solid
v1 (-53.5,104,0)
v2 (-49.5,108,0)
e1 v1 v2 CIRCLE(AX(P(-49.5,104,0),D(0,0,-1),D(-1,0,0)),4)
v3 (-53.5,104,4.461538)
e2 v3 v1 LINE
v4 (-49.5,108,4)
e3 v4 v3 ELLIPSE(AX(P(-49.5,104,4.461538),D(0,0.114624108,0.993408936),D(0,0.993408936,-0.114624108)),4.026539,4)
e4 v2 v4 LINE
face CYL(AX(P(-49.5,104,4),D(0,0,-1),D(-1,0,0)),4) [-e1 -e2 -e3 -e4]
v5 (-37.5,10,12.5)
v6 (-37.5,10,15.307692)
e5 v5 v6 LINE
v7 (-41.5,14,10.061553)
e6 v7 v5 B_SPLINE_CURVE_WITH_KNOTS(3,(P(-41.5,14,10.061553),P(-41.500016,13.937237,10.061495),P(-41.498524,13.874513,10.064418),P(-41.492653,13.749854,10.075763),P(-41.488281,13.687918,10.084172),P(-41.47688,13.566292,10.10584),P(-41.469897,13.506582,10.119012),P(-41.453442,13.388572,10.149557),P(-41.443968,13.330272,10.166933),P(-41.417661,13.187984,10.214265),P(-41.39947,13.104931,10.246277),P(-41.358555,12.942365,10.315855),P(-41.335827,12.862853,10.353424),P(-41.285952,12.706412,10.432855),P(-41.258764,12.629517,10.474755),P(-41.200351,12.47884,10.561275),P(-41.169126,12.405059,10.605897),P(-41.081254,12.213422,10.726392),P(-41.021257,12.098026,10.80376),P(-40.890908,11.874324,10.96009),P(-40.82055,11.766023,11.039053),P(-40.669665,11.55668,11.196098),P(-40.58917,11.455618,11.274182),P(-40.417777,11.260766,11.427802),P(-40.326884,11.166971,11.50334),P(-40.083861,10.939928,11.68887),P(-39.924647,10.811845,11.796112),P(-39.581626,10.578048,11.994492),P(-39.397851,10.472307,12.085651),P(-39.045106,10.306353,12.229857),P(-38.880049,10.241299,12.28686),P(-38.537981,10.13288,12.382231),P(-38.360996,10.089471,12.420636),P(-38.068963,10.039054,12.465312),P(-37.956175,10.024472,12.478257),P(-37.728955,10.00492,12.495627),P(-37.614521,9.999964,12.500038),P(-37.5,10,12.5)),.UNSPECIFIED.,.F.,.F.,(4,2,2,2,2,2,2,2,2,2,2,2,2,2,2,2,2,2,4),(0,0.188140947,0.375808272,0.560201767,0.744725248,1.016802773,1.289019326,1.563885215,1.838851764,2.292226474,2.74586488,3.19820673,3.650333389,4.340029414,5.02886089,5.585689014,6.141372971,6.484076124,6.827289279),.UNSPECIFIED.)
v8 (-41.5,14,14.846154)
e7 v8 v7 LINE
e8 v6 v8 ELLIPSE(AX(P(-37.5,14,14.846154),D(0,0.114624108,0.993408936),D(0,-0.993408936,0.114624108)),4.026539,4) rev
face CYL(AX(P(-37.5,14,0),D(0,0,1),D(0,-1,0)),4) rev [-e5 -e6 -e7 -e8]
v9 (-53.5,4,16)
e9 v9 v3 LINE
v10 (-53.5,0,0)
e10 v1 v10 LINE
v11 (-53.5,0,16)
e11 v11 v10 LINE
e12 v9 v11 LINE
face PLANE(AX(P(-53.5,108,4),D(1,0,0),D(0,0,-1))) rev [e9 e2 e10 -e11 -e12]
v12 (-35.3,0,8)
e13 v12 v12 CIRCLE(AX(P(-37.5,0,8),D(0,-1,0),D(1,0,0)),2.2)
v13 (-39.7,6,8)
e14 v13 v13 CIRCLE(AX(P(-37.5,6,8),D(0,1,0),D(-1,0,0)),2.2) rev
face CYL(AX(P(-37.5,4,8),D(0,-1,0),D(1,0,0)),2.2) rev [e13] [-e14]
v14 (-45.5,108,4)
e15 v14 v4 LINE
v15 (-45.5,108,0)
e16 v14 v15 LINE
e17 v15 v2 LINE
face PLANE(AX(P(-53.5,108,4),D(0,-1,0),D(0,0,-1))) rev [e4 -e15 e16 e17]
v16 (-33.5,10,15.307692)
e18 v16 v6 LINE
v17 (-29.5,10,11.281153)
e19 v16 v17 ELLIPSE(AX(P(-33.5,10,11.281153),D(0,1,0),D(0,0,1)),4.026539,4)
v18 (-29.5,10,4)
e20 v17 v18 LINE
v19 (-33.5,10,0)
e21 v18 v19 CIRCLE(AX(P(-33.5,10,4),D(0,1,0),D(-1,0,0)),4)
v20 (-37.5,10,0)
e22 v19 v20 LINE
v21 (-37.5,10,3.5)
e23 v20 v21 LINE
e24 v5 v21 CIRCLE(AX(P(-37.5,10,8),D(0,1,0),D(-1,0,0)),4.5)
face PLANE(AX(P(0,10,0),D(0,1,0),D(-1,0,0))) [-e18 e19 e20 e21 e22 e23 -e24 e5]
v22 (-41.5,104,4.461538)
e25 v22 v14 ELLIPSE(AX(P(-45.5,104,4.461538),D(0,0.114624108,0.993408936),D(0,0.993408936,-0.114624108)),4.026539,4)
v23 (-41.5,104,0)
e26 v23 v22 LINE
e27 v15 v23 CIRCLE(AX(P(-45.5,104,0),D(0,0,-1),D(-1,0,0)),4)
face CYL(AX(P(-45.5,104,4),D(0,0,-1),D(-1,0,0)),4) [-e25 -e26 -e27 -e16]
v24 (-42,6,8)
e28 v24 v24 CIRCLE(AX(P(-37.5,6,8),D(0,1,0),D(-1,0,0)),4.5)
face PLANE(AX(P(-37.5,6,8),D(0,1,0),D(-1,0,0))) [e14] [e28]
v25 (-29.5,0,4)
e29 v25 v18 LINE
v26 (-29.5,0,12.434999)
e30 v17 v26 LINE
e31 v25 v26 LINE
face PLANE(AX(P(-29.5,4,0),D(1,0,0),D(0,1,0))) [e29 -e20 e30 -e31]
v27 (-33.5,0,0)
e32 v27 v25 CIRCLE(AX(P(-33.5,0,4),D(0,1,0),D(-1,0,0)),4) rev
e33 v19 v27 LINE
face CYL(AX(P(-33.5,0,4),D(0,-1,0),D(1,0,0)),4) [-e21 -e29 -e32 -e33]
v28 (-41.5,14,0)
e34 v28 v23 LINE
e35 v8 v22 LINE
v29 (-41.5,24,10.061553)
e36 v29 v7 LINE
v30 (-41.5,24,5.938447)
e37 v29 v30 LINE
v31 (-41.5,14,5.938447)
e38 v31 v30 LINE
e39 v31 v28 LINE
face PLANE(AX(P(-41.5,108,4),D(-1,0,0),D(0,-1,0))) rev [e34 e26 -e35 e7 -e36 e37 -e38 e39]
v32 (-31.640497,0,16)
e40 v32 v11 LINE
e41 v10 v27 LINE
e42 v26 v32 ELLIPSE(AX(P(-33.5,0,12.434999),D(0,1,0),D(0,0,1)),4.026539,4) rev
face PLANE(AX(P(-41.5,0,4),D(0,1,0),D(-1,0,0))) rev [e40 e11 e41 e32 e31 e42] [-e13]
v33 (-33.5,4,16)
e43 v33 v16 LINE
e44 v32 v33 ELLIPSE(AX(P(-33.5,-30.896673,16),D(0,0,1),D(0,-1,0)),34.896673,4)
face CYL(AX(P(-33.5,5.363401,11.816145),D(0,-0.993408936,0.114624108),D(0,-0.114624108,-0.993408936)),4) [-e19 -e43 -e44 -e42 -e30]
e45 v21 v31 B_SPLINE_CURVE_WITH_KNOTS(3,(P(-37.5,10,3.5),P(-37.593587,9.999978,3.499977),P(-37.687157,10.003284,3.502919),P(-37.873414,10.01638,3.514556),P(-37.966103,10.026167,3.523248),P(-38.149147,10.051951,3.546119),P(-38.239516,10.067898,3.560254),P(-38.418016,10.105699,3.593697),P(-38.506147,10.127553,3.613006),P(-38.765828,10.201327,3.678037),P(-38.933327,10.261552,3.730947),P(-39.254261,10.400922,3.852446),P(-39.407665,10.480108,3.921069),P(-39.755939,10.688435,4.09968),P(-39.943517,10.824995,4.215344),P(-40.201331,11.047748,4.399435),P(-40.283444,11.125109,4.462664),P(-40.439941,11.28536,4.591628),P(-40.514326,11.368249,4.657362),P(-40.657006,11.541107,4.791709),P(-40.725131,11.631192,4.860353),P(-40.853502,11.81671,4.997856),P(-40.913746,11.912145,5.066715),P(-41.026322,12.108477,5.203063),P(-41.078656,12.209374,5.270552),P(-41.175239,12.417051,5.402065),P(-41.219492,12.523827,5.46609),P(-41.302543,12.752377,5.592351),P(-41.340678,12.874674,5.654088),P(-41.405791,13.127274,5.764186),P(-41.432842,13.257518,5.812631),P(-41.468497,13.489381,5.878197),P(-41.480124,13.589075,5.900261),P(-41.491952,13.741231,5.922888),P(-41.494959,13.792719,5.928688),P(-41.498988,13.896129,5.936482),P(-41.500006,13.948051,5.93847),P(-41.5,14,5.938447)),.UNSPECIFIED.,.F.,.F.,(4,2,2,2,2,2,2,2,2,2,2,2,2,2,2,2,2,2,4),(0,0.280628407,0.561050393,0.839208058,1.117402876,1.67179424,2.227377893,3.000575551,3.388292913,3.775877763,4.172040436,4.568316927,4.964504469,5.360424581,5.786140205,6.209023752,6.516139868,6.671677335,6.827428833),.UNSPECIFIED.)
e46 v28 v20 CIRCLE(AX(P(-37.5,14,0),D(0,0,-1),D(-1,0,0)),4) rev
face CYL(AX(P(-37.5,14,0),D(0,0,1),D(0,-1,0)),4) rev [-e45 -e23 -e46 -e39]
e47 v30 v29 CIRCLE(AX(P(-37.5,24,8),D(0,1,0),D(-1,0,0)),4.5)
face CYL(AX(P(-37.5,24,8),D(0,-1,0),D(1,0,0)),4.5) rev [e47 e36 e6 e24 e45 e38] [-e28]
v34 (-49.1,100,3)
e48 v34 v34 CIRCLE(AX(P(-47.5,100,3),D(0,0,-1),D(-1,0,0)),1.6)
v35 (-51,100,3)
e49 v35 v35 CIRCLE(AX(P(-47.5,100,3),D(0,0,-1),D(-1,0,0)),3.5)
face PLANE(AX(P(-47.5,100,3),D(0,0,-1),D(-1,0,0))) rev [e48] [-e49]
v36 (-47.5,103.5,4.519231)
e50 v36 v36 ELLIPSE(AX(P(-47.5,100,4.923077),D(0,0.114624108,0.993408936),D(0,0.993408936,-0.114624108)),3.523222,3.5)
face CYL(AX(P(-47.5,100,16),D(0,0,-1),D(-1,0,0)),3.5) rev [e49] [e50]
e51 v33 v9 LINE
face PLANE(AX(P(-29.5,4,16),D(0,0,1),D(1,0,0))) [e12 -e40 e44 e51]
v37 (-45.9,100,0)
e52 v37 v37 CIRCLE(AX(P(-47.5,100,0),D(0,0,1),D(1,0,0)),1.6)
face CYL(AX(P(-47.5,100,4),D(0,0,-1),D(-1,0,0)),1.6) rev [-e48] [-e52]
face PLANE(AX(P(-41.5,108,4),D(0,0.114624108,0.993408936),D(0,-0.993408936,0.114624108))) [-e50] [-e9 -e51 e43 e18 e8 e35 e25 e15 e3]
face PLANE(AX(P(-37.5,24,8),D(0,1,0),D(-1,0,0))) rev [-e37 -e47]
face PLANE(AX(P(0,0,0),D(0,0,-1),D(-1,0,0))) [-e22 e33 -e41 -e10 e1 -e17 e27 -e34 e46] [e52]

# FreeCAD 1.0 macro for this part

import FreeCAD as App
import Part
import Sketcher
Q = App.Units.Quantity


def edges_at(feature, points):
    """Names of the edges that pass closest to the given points."""
    edges = feature.Shape.Edges
    near = lambda p: min(range(len(edges)), key=lambda i: edges[i].distToShape(Part.Vertex(*p))[0])
    return sorted({f"Edge{near(p) + 1}" for p in points})


def add_polygon(sketch, points):
    """Adds a closed chain of lines whose ends are joined by coincident constraints."""
    first, n = sketch.GeometryCount, len(points)
    for a, b in zip(points, points[1:] + points[:1]):
        sketch.addGeometry(Part.LineSegment(App.Vector(*a, 0), App.Vector(*b, 0)), False)
    for i in range(n):
        sketch.addConstraint(Sketcher.Constraint("Coincident", first + i, 2, first + (i + 1) % n, 1))

doc = App.newDocument("Part")
params = doc.addObject("Spreadsheet::Sheet", "Params")
for row, (alias, value) in enumerate([
    ("sketch1_diameter", "3.2 mm"),
    ("sketch1_width", "12 mm"),
    ("sketch1_height", "108 mm"),
    ("pad1_length", "4 mm"),
    ("sketch2_diameter", "4.4 mm"),
    ("sketch2_width", "12 mm"),
    ("sketch2_height", "16 mm"),
    ("pad2_length", "4 mm"),
    ("sketch3_width", "104 mm"),
    ("sketch3_height", "12 mm"),
    ("pad3_length", "12 mm"),
    ("sketch4_diameter", "4.4 mm"),
    ("sketch4_width", "12 mm"),
    ("sketch4_height", "16 mm"),
    ("pad4_length", "6 mm"),
    ("sketch5_width", "6 mm"),
    ("sketch6_diameter", "9 mm"),
    ("pocket2_length", "14 mm"),
    ("sketch7_diameter", "9 mm"),
    ("pocket3_length", "4 mm"),
    ("sketch8_diameter", "3.2 mm"),
    ("sketch9_diameter", "7 mm"),
    ("fillet_radius", "4 mm"),
    ("fillet2_radius", "4 mm"),
    ("fillet3_radius", "4 mm"),
], start=1):
    params.set(f"A{row}", alias)
    params.set(f"B{row}", "=" + value)
    params.setAlias(f"B{row}", alias)

body = doc.addObject("PartDesign::Body", "Body")

# Sketch on XY plane
sketch1 = doc.addObject("Sketcher::SketchObject", "Sketch")
body.addObject(sketch1)
sketch1.AttachmentSupport = (doc.XY_Plane, [""])
sketch1.MapMode = "FlatFace"
add_polygon(sketch1, [(-53.5, 108), (-53.5, 0), (-41.5, 0), (-41.5, 108)])  # lines 0-3
sketch1.addGeometry(Part.Circle(App.Vector(-47.5, 100, 0), App.Vector(0, 0, 1), 1.6), False)  # 4
sketch1.addConstraint([
    Sketcher.Constraint("Vertical", 0),
    Sketcher.Constraint("Horizontal", 1),
    Sketcher.Constraint("Vertical", 2),
    Sketcher.Constraint("Horizontal", 3),
    Sketcher.Constraint("PointOnObject", 0, 2, -1),
    Sketcher.Constraint("Diameter", 4, Q("3.2 mm")),
    Sketcher.Constraint("DistanceX", 1, 1, 1, 2, Q("12 mm")),
    Sketcher.Constraint("DistanceY", 0, 2, 0, 1, Q("108 mm")),
    Sketcher.Constraint("DistanceY", -1, 1, 4, 3, Q("100 mm")),
    Sketcher.Constraint("DistanceX", 0, 2, 4, 3, Q("6 mm")),
    Sketcher.Constraint("DistanceX", 4, 3, -1, 1, Q("47.5 mm")),
])
sketch1.setExpression("Constraints[9]", "Params.sketch1_diameter")
sketch1.setExpression("Constraints[10]", "Params.sketch1_width")
sketch1.setExpression("Constraints[11]", "Params.sketch1_height")
pad1 = doc.addObject("PartDesign::Pad", "Pad")
body.addObject(pad1)
pad1.Profile = sketch1
pad1.setExpression("Length", "Params.pad1_length")

# Sketch on XZ plane
sketch2 = doc.addObject("Sketcher::SketchObject", "Sketch001")
body.addObject(sketch2)
sketch2.AttachmentSupport = (doc.XZ_Plane, [""])
sketch2.MapMode = "FlatFace"
add_polygon(sketch2, [(-41.5, 0), (-29.5, 0), (-29.5, 16), (-53.5, 16), (-53.5, 4), (-41.5, 4)])  # lines 0-5
sketch2.addGeometry(Part.Circle(App.Vector(-37.5, 8, 0), App.Vector(0, 0, 1), 2.2), False)  # 6
sketch2.addConstraint([
    Sketcher.Constraint("Horizontal", 0),
    Sketcher.Constraint("Vertical", 1),
    Sketcher.Constraint("Horizontal", 2),
    Sketcher.Constraint("Vertical", 3),
    Sketcher.Constraint("Horizontal", 4),
    Sketcher.Constraint("Vertical", 5),
    Sketcher.Constraint("PointOnObject", 0, 2, -1),
    Sketcher.Constraint("Equal", 0, 4),
    Sketcher.Constraint("Equal", 4, 3),
    Sketcher.Constraint("Diameter", 6, Q("4.4 mm")),
    Sketcher.Constraint("DistanceX", 0, 1, 0, 2, Q("12 mm")),
    Sketcher.Constraint("DistanceY", 1, 1, 1, 2, Q("16 mm")),
    Sketcher.Constraint("DistanceY", -1, 1, 6, 3, Q("8 mm")),
    Sketcher.Constraint("DistanceX", 6, 3, 0, 2, Q("8 mm")),
    Sketcher.Constraint("DistanceX", 6, 3, -1, 1, Q("37.5 mm")),
])
sketch2.setExpression("Constraints[15]", "Params.sketch2_diameter")
sketch2.setExpression("Constraints[16]", "Params.sketch2_width")
sketch2.setExpression("Constraints[17]", "Params.sketch2_height")
pad2 = doc.addObject("PartDesign::Pad", "Pad001")
body.addObject(pad2)
pad2.Profile = sketch2
pad2.setExpression("Length", "Params.pad2_length")
pad2.Reversed = True

# Sketch on YZ plane
sketch3 = doc.addObject("Sketcher::SketchObject", "Sketch002")
body.addObject(sketch3)
sketch3.AttachmentSupport = (doc.YZ_Plane, [""])
sketch3.MapMode = "FlatFace"
sketch3.AttachmentOffset = App.Placement(App.Vector(0, 0, -53.5), App.Rotation())
add_polygon(sketch3, [(4, 16), (108, 4), (4, 4)])  # lines 0-2
sketch3.addConstraint([
    Sketcher.Constraint("Horizontal", 1),
    Sketcher.Constraint("Vertical", 2),
    Sketcher.Constraint("DistanceX", 1, 2, 1, 1, Q("104 mm")),
    Sketcher.Constraint("DistanceY", 2, 1, 2, 2, Q("12 mm")),
    Sketcher.Constraint("DistanceX", -1, 1, 0, 2, Q("108 mm")),
    Sketcher.Constraint("DistanceY", -1, 1, 0, 2, Q("4 mm")),
])
sketch3.setExpression("Constraints[5]", "Params.sketch3_width")
sketch3.setExpression("Constraints[6]", "Params.sketch3_height")
pad3 = doc.addObject("PartDesign::Pad", "Pad002")
body.addObject(pad3)
pad3.Profile = sketch3
pad3.setExpression("Length", "Params.pad3_length")

# Sketch on XZ plane
sketch4 = doc.addObject("Sketcher::SketchObject", "Sketch003")
body.addObject(sketch4)
sketch4.AttachmentSupport = (doc.XZ_Plane, [""])
sketch4.MapMode = "FlatFace"
sketch4.AttachmentOffset = App.Placement(App.Vector(0, 0, -4), App.Rotation())
add_polygon(sketch4, [(-41.5, 0), (-41.5, 16), (-29.5, 16), (-29.5, 0)])  # lines 0-3
sketch4.addGeometry(Part.Circle(App.Vector(-37.5, 8, 0), App.Vector(0, 0, 1), 2.2), False)  # 4
sketch4.addConstraint([
    Sketcher.Constraint("Vertical", 0),
    Sketcher.Constraint("Horizontal", 1),
    Sketcher.Constraint("Vertical", 2),
    Sketcher.Constraint("Horizontal", 3),
    Sketcher.Constraint("PointOnObject", 2, 2, -1),
    Sketcher.Constraint("Diameter", 4, Q("4.4 mm")),
    Sketcher.Constraint("DistanceX", 1, 1, 1, 2, Q("12 mm")),
    Sketcher.Constraint("DistanceY", 0, 1, 0, 2, Q("16 mm")),
    Sketcher.Constraint("DistanceY", -1, 1, 4, 3, Q("8 mm")),
    Sketcher.Constraint("DistanceX", 0, 2, 4, 3, Q("4 mm")),
    Sketcher.Constraint("DistanceX", 4, 3, -1, 1, Q("37.5 mm")),
])
sketch4.setExpression("Constraints[9]", "Params.sketch4_diameter")
sketch4.setExpression("Constraints[10]", "Params.sketch4_width")
sketch4.setExpression("Constraints[11]", "Params.sketch4_height")
pad4 = doc.addObject("PartDesign::Pad", "Pad003")
body.addObject(pad4)
pad4.Profile = sketch4
pad4.setExpression("Length", "Params.pad4_length")
pad4.Reversed = True

# Sketch on YZ plane
sketch5 = doc.addObject("Sketcher::SketchObject", "Sketch004")
body.addObject(sketch5)
sketch5.AttachmentSupport = (doc.YZ_Plane, [""])
sketch5.MapMode = "FlatFace"
sketch5.AttachmentOffset = App.Placement(App.Vector(0, 0, -41.5), App.Rotation())
add_polygon(sketch5, [(10, 15.307692), (4, 16), (10, 16)])  # lines 0-2
sketch5.addConstraint([
    Sketcher.Constraint("Horizontal", 1),
    Sketcher.Constraint("Vertical", 2),
    Sketcher.Constraint("DistanceX", 1, 1, 1, 2, Q("6 mm")),
    Sketcher.Constraint("DistanceX", -1, 1, 0, 2, Q("4 mm")),
    Sketcher.Constraint("DistanceY", -1, 1, 0, 2, Q("16 mm")),
    Sketcher.Constraint("Distance", 0, Q("6.039809 mm")),
])
sketch5.setExpression("Constraints[5]", "Params.sketch5_width")
pocket1 = doc.addObject("PartDesign::Pocket", "Pocket")
body.addObject(pocket1)
pocket1.Profile = sketch5
pocket1.Type = "ThroughAll"
pocket1.Reversed = True

# Sketch on XZ plane
sketch6 = doc.addObject("Sketcher::SketchObject", "Sketch005")
body.addObject(sketch6)
sketch6.AttachmentSupport = (doc.XZ_Plane, [""])
sketch6.MapMode = "FlatFace"
sketch6.AttachmentOffset = App.Placement(App.Vector(0, 0, -10), App.Rotation())
sketch6.addGeometry(Part.Circle(App.Vector(-37.5, 8, 0), App.Vector(0, 0, 1), 4.5), False)
sketch6.addConstraint([
    Sketcher.Constraint("Diameter", 0, Q("9 mm")),
    Sketcher.Constraint("DistanceY", -1, 1, 0, 3, Q("8 mm")),
    Sketcher.Constraint("DistanceX", 0, 3, -1, 1, Q("37.5 mm")),
])
sketch6.setExpression("Constraints[0]", "Params.sketch6_diameter")
pocket2 = doc.addObject("PartDesign::Pocket", "Pocket001")
body.addObject(pocket2)
pocket2.Profile = sketch6
pocket2.setExpression("Length", "Params.pocket2_length")

# Sketch on XZ plane
sketch7 = doc.addObject("Sketcher::SketchObject", "Sketch006")
body.addObject(sketch7)
sketch7.AttachmentSupport = (doc.XZ_Plane, [""])
sketch7.MapMode = "FlatFace"
sketch7.AttachmentOffset = App.Placement(App.Vector(0, 0, -10), App.Rotation())
sketch7.addGeometry(Part.Circle(App.Vector(-37.5, 8, 0), App.Vector(0, 0, 1), 4.5), False)
sketch7.addConstraint([
    Sketcher.Constraint("Diameter", 0, Q("9 mm")),
    Sketcher.Constraint("DistanceY", -1, 1, 0, 3, Q("8 mm")),
    Sketcher.Constraint("DistanceX", 0, 3, -1, 1, Q("37.5 mm")),
])
sketch7.setExpression("Constraints[0]", "Params.sketch7_diameter")
pocket3 = doc.addObject("PartDesign::Pocket", "Pocket002")
body.addObject(pocket3)
pocket3.Profile = sketch7
pocket3.setExpression("Length", "Params.pocket3_length")
pocket3.Reversed = True

# Sketch on XY plane
sketch8 = doc.addObject("Sketcher::SketchObject", "Sketch007")
body.addObject(sketch8)
sketch8.AttachmentSupport = (doc.XY_Plane, [""])
sketch8.MapMode = "FlatFace"
sketch8.addGeometry(Part.Circle(App.Vector(-47.5, 100, 0), App.Vector(0, 0, 1), 1.6), False)
sketch8.addConstraint([
    Sketcher.Constraint("Diameter", 0, Q("3.2 mm")),
    Sketcher.Constraint("DistanceY", -1, 1, 0, 3, Q("100 mm")),
    Sketcher.Constraint("DistanceX", 0, 3, -1, 1, Q("47.5 mm")),
])
sketch8.setExpression("Constraints[0]", "Params.sketch8_diameter")
pocket4 = doc.addObject("PartDesign::Pocket", "Pocket003")
body.addObject(pocket4)
pocket4.Profile = sketch8
pocket4.Type = "ThroughAll"
pocket4.Reversed = True

# Sketch on XY plane
sketch9 = doc.addObject("Sketcher::SketchObject", "Sketch008")
body.addObject(sketch9)
sketch9.AttachmentSupport = (doc.XY_Plane, [""])
sketch9.MapMode = "FlatFace"
sketch9.AttachmentOffset = App.Placement(App.Vector(0, 0, 3), App.Rotation())
sketch9.addGeometry(Part.Circle(App.Vector(-47.5, 100, 0), App.Vector(0, 0, 1), 3.5), False)
sketch9.addConstraint([
    Sketcher.Constraint("Diameter", 0, Q("7 mm")),
    Sketcher.Constraint("DistanceY", -1, 1, 0, 3, Q("100 mm")),
    Sketcher.Constraint("DistanceX", 0, 3, -1, 1, Q("47.5 mm")),
])
sketch9.setExpression("Constraints[0]", "Params.sketch9_diameter")
pocket5 = doc.addObject("PartDesign::Pocket", "Pocket004")
body.addObject(pocket5)
pocket5.Profile = sketch9
pocket5.Type = "ThroughAll"
pocket5.Reversed = True
doc.recompute()

fillet = doc.addObject("PartDesign::Fillet", "Fillet")
body.addObject(fillet)
fillet.Base = (pocket5, edges_at(pocket5, [(-41.5, 108, 2), (-53.5, 108, 2)]))
fillet.setExpression("Radius", "Params.fillet_radius")
doc.recompute()

fillet2 = doc.addObject("PartDesign::Fillet", "Fillet001")
body.addObject(fillet2)
fillet2.Base = (fillet, edges_at(fillet, [(-41.5, 10, 2.969), (-41.5, 10, 12.685)]))
fillet2.setExpression("Radius", "Params.fillet2_radius")
doc.recompute()

fillet3 = doc.addObject("PartDesign::Fillet", "Fillet002")
body.addObject(fillet3)
fillet3.Base = (fillet2, edges_at(fillet2, [(-29.5, 5, 0), (-29.5, 7, 15.654)]))
fillet3.setExpression("Radius", "Params.fillet3_radius")

doc.recompute()
